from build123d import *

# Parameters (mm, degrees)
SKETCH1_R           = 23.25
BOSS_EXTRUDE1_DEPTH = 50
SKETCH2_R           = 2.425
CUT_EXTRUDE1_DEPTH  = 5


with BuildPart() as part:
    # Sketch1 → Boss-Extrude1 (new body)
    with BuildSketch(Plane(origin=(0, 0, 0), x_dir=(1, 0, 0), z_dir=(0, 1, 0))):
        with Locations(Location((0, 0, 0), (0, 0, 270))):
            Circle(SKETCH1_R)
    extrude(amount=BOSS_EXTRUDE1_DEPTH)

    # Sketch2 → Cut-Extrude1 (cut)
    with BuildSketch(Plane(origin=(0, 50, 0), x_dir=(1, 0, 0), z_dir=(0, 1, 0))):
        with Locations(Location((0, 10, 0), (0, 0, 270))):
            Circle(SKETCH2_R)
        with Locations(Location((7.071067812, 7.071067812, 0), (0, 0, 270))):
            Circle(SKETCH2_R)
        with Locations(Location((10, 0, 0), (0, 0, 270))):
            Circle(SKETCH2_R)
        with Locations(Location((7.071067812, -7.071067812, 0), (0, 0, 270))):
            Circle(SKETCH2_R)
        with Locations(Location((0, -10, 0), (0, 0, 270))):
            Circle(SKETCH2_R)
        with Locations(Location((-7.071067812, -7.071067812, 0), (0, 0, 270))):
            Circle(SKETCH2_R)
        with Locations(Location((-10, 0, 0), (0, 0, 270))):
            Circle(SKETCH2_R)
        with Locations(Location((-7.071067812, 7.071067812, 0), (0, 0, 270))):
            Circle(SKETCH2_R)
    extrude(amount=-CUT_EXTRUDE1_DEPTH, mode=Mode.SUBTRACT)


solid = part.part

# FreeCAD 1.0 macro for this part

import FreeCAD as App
import Part
import Sketcher

doc = App.newDocument("Part")
params = doc.addObject("Spreadsheet::Sheet", "Params")
for row, (alias, value) in enumerate([
    ("sketch1_diameter", "46.5 mm"),
    ("pad1_length", "50 mm"),
    ("sketch2_diameter", "4.85 mm"),
    ("pocket1_length", "5 mm"),
], start=1):
    params.set(f"A{row}", alias)
    params.set(f"B{row}", "=" + value)
    params.setAlias(f"B{row}", alias)

body = doc.addObject("PartDesign::Body", "Body")

# Sketch on XZ plane
sketch1 = doc.addObject("Sketcher::SketchObject", "Sketch")
body.addObject(sketch1)
sketch1.AttachmentSupport = (doc.XZ_Plane, [""])
sketch1.MapMode = "FlatFace"
sketch1.addGeometry(Part.Circle(App.Vector(0, 0, 0), App.Vector(0, 0, 1), 23), False)
sketch1.addConstraint([
    Sketcher.Constraint("Coincident", 0, 3, -1, 1),
    Sketcher.Constraint("Diameter", 0, 46.5),
])
sketch1.setExpression("Constraints[1]", "Params.sketch1_diameter")
pad1 = doc.addObject("PartDesign::Pad", "Pad")
body.addObject(pad1)
pad1.Profile = sketch1
pad1.setExpression("Length", "Params.pad1_length")
pad1.Reversed = True

# Sketch on XZ plane
sketch2 = doc.addObject("Sketcher::SketchObject", "Sketch001")
body.addObject(sketch2)
sketch2.AttachmentSupport = (doc.XZ_Plane, [""])
sketch2.MapMode = "FlatFace"
sketch2.AttachmentOffset = App.Placement(App.Vector(0, 0, -50), App.Rotation())
sketch2.addGeometry([
    Part.Circle(App.Vector(0, -10, 0), App.Vector(0, 0, 1), 2.4),  # 0
    Part.Circle(App.Vector(7.1, -7.1, 0), App.Vector(0, 0, 1), 2.4),  # 1
    Part.Circle(App.Vector(10, 0, 0), App.Vector(0, 0, 1), 2.4),  # 2
    Part.Circle(App.Vector(7.1, 7.1, 0), App.Vector(0, 0, 1), 2.4),  # 3
    Part.Circle(App.Vector(0, 10, 0), App.Vector(0, 0, 1), 2.4),  # 4
    Part.Circle(App.Vector(-7.1, 7.1, 0), App.Vector(0, 0, 1), 2.4),  # 5
    Part.Circle(App.Vector(-10, 0, 0), App.Vector(0, 0, 1), 2.4),  # 6
    Part.Circle(App.Vector(-7.1, -7.1, 0), App.Vector(0, 0, 1), 2.4),  # 7
], False)
sketch2.addConstraint([
    Sketcher.Constraint("Equal", 0, 1),
    Sketcher.Constraint("Equal", 1, 2),
    Sketcher.Constraint("Equal", 2, 3),
    Sketcher.Constraint("Equal", 3, 4),
    Sketcher.Constraint("Equal", 4, 5),
    Sketcher.Constraint("Equal", 5, 6),
    Sketcher.Constraint("Equal", 6, 7),
    Sketcher.Constraint("Symmetric", 0, 3, 4, 3, -1, 1),
    Sketcher.Constraint("Symmetric", 1, 3, 5, 3, -1, 1),
    Sketcher.Constraint("Symmetric", 2, 3, 6, 3, -1, 1),
    Sketcher.Constraint("Symmetric", 3, 3, 7, 3, -1, 1),
    Sketcher.Constraint("Symmetric", 3, 3, 5, 3, -2),
    Sketcher.Constraint("PointOnObject", 0, 3, -2),
    Sketcher.Constraint("PointOnObject", 2, 3, -1),
    Sketcher.Constraint("Diameter", 0, 4.85),
    Sketcher.Constraint("DistanceY", 0, 3, -1, 1, 10.0),
    Sketcher.Constraint("DistanceX", -1, 1, 2, 3, 10.0),
    Sketcher.Constraint("DistanceX", -1, 1, 1, 3, 7.071068),
    Sketcher.Constraint("DistanceY", 1, 3, -1, 1, 7.071068),
])
sketch2.setExpression("Constraints[14]", "Params.sketch2_diameter")
pocket1 = doc.addObject("PartDesign::Pocket", "Pocket")
body.addObject(pocket1)
pocket1.Profile = sketch2
pocket1.setExpression("Length", "Params.pocket1_length")
pocket1.Reversed = True

doc.recompute()
